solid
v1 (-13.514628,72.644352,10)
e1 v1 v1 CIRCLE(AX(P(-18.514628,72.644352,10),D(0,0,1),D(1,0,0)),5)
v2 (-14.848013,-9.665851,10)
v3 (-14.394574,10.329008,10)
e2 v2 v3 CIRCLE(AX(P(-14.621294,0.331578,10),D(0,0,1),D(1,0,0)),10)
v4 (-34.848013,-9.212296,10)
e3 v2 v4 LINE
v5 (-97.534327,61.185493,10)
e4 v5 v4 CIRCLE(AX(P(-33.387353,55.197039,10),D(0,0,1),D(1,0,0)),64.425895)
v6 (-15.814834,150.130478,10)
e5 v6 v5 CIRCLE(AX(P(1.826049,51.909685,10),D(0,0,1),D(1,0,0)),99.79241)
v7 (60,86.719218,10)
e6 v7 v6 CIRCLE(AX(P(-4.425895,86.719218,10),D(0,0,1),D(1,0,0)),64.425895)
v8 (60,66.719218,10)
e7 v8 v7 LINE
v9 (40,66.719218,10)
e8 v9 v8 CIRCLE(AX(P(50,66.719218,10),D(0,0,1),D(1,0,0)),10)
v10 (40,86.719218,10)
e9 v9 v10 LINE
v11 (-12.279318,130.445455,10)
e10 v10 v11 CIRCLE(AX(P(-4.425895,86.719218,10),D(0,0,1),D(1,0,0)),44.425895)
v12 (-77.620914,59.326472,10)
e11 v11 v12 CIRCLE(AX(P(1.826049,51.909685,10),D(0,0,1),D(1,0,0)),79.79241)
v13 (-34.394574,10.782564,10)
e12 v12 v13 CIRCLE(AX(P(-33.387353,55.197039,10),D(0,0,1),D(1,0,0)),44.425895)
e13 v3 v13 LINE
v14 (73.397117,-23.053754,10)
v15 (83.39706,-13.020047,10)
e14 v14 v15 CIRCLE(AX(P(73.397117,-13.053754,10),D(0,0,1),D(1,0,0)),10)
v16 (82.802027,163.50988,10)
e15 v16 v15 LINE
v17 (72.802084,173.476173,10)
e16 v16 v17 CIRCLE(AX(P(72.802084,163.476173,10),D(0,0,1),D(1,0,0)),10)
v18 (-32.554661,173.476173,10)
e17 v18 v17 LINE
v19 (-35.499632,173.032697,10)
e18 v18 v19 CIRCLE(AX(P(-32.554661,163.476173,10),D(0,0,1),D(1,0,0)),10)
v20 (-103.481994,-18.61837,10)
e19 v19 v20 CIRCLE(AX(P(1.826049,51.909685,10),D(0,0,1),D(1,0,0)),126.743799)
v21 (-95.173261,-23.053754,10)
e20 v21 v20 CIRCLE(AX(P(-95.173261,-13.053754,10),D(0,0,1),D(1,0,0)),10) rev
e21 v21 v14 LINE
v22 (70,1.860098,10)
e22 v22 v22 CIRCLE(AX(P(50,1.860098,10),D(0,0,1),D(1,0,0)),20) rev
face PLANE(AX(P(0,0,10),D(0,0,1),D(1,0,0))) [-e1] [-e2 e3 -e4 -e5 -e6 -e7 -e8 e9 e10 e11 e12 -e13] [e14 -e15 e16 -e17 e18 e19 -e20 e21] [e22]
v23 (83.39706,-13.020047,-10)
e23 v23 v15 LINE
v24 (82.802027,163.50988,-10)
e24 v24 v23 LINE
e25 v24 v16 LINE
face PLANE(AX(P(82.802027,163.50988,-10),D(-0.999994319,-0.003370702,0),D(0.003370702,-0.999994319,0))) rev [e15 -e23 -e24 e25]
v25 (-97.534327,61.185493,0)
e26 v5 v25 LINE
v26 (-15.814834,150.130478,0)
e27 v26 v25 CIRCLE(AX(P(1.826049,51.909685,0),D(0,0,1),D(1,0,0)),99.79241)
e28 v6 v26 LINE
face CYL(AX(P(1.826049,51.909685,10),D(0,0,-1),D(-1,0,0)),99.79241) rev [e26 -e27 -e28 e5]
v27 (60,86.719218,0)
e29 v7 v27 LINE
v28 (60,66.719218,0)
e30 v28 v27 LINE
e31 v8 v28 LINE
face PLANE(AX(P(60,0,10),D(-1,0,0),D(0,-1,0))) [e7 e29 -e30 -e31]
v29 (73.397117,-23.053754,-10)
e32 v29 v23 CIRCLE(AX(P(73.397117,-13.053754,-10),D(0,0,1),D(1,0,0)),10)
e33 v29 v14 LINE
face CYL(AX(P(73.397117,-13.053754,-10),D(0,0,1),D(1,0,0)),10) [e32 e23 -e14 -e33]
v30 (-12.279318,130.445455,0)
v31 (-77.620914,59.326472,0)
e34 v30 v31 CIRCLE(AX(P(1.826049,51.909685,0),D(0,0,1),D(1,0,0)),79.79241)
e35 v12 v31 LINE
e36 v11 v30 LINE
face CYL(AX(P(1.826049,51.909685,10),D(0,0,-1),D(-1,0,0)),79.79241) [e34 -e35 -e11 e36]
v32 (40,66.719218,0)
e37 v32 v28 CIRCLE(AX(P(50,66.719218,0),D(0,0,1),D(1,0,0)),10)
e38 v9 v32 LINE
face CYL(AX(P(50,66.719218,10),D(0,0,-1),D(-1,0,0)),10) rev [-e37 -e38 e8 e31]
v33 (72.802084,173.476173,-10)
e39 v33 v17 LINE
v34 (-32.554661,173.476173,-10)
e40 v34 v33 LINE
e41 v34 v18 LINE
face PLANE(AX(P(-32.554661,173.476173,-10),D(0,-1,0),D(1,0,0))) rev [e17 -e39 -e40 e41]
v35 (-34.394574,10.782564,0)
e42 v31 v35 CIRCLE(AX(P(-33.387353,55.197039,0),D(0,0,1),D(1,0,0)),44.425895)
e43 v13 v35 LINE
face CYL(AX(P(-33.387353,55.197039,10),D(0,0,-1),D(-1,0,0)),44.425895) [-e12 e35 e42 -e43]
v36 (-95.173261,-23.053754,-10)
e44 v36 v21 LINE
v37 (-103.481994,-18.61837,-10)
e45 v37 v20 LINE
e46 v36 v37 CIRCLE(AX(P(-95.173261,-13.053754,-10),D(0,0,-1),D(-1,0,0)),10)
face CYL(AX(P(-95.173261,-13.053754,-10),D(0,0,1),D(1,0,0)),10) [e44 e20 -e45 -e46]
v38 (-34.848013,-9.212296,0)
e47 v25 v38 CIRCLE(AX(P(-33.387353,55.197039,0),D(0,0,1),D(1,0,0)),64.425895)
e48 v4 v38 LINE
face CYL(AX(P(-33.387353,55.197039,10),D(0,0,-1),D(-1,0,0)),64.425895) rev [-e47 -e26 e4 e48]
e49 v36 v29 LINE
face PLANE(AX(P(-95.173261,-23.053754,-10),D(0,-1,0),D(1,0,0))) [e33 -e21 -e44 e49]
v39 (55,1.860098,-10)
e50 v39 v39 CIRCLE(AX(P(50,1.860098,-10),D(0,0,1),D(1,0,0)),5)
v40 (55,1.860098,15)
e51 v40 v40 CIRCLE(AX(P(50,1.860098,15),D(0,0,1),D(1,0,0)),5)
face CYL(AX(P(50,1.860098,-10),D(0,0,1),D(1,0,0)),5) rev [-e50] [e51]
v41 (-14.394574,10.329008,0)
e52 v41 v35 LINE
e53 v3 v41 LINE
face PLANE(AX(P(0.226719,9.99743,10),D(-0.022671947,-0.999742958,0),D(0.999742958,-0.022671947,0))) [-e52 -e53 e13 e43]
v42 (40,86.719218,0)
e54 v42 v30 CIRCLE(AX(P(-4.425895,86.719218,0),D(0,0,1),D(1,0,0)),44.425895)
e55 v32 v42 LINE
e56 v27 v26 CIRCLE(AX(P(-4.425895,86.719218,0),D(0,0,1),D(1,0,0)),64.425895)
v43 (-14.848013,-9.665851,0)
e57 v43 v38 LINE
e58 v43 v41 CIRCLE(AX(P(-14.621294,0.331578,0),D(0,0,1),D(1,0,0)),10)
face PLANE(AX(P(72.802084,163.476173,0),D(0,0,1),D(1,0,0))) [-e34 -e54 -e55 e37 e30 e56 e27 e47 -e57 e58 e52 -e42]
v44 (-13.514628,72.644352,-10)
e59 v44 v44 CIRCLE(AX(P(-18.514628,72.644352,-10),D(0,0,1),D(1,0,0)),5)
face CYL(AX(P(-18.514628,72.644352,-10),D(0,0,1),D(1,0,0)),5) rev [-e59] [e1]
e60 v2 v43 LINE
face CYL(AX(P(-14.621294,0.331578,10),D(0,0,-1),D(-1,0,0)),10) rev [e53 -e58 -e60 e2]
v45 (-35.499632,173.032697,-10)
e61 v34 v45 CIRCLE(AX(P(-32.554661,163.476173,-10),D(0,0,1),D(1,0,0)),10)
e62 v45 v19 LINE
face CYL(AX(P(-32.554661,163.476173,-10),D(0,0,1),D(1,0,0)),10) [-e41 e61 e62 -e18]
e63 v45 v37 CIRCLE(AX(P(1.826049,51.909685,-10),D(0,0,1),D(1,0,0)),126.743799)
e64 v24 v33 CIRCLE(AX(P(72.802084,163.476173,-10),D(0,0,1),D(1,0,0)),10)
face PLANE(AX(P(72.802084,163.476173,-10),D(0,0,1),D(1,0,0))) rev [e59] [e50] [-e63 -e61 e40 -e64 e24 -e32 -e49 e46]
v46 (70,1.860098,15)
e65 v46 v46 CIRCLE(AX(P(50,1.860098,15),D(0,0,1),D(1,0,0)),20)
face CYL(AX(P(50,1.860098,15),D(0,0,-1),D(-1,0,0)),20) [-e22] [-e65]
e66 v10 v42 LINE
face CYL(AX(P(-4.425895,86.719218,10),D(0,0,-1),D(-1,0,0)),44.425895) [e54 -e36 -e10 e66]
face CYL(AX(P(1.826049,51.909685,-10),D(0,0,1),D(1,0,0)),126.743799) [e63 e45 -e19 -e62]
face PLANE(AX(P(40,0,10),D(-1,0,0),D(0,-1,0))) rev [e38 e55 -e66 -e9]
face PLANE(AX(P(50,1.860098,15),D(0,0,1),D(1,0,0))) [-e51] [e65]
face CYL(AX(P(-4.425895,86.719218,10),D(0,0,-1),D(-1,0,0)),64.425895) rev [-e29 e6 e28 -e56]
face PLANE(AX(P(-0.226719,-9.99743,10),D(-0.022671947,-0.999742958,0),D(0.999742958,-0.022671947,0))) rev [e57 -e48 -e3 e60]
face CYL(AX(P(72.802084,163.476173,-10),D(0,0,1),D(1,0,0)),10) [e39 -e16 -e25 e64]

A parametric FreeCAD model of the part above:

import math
import FreeCAD as App
import Part
import Sketcher

V = App.Vector

doc = App.newDocument("Part")
body = doc.addObject("PartDesign::Body", "Body")

# Sketch on XY plane
sketch1 = body.newObject("Sketcher::SketchObject", "Sketch")
sketch1.AttachmentSupport = (doc.getObject("XY_Plane"), [""])
sketch1.MapMode = "FlatFace"
sketch1.addGeometry(Part.LineSegment(V(72.8, 173.5, 0), V(-32.6, 173.5, 0)), False)
sketch1.addGeometry(Part.ArcOfCircle(Part.Circle(V(-32.6, 163.5, 0), V(0, 0, 1), 10), math.radians(90), math.radians(107.13)), False)
sketch1.addGeometry(Part.ArcOfCircle(Part.Circle(V(1.8, 51.9, 0), V(0, 0, 1), 126.7), math.radians(107), math.radians(214)), False)
sketch1.addGeometry(Part.ArcOfCircle(Part.Circle(V(-95.2, -13.1, 0), V(0, 0, 1), 10), math.radians(-146), math.radians(-90)), False)
sketch1.addGeometry(Part.LineSegment(V(-95.2, -23.1, 0), V(73.4, -23.1, 0)), False)
sketch1.addGeometry(Part.ArcOfCircle(Part.Circle(V(73.4, -13.1, 0), V(0, 0, 1), 10), math.radians(-90), math.radians(0)), False)
sketch1.addGeometry(Part.LineSegment(V(83.4, -13, 0), V(82.8, 163.5, 0)), False)
sketch1.addGeometry(Part.ArcOfCircle(Part.Circle(V(72.8, 163.5, 0), V(0, 0, 1), 10), math.radians(0), math.radians(90)), False)
sketch1.addConstraint(Sketcher.Constraint("Tangent", 0, 2, 1, 1))
sketch1.addConstraint(Sketcher.Constraint("Tangent", 1, 2, 2, 1))
sketch1.addConstraint(Sketcher.Constraint("Tangent", 2, 2, 3, 1))
sketch1.addConstraint(Sketcher.Constraint("Tangent", 3, 2, 4, 1))
sketch1.addConstraint(Sketcher.Constraint("Tangent", 4, 2, 5, 1))
sketch1.addConstraint(Sketcher.Constraint("Tangent", 5, 2, 6, 1))
sketch1.addConstraint(Sketcher.Constraint("Tangent", 6, 2, 7, 1))
sketch1.addConstraint(Sketcher.Constraint("Tangent", 7, 2, 0, 1))
sketch1.addConstraint(Sketcher.Constraint("Horizontal", 0))
sketch1.addConstraint(Sketcher.Constraint("Horizontal", 4))
sketch1.addConstraint(Sketcher.Constraint("Equal", 1, 3))
sketch1.addConstraint(Sketcher.Constraint("Equal", 3, 5))
sketch1.addConstraint(Sketcher.Constraint("Equal", 5, 7))
sketch1.addConstraint(Sketcher.Constraint("Radius", 1, 10.0))
sketch1.addConstraint(Sketcher.Constraint("Radius", 2, 126.743799))
sketch1.addConstraint(Sketcher.Constraint("DistanceX", 3, 3, 1, 3, 62.6186))
sketch1.addConstraint(Sketcher.Constraint("Distance", 6, 176.53093))
sketch1.addConstraint(Sketcher.Constraint("DistanceX", 0, 2, 0, 1, 105.356744))
sketch1.addConstraint(Sketcher.Constraint("DistanceX", 4, 1, 4, 2, 168.570378))
sketch1.addConstraint(Sketcher.Constraint("DistanceX", 1, 3, -1, 1, 32.554661))
sketch1.addConstraint(Sketcher.Constraint("DistanceY", 2, 2, -1, 1, 18.61837))
pad1 = body.newObject("PartDesign::Pad", "Pad")
pad1.Profile = sketch1
pad1.Length = 10
pad1.Reversed = True

# Sketch on XY plane
sketch2 = body.newObject("Sketcher::SketchObject", "Sketch001")
sketch2.AttachmentSupport = (doc.getObject("XY_Plane"), [""])
sketch2.MapMode = "FlatFace"
sketch2.AttachmentOffset = App.Placement(V(0, 0, 10), App.Rotation())
sketch2.addGeometry(Part.LineSegment(V(72.8, 173.5, 0), V(-32.6, 173.5, 0)), False)
sketch2.addGeometry(Part.ArcOfCircle(Part.Circle(V(-32.6, 163.5, 0), V(0, 0, 1), 10), math.radians(90), math.radians(107.13)), False)
sketch2.addGeometry(Part.ArcOfCircle(Part.Circle(V(1.8, 51.9, 0), V(0, 0, 1), 126.7), math.radians(107), math.radians(214)), False)
sketch2.addGeometry(Part.ArcOfCircle(Part.Circle(V(-95.2, -13.1, 0), V(0, 0, 1), 10), math.radians(-146), math.radians(-90)), False)
sketch2.addGeometry(Part.LineSegment(V(-95.2, -23.1, 0), V(73.4, -23.1, 0)), False)
sketch2.addGeometry(Part.ArcOfCircle(Part.Circle(V(73.4, -13.1, 0), V(0, 0, 1), 10), math.radians(-90), math.radians(0)), False)
sketch2.addGeometry(Part.LineSegment(V(83.4, -13, 0), V(82.8, 163.5, 0)), False)
sketch2.addGeometry(Part.ArcOfCircle(Part.Circle(V(72.8, 163.5, 0), V(0, 0, 1), 10), math.radians(0), math.radians(90)), False)
sketch2.addGeometry(Part.LineSegment(V(40, 66.7, 0), V(40, 86.7, 0)), False)
sketch2.addGeometry(Part.ArcOfCircle(Part.Circle(V(-4.4, 86.7, 0), V(0, 0, 1), 44.4), math.radians(0), math.radians(100)), False)
sketch2.addGeometry(Part.ArcOfCircle(Part.Circle(V(1.8, 51.9, 0), V(0, 0, 1), 79.8), math.radians(100), math.radians(175)), False)
sketch2.addGeometry(Part.ArcOfCircle(Part.Circle(V(-33.4, 55.2, 0), V(0, 0, 1), 44.4), math.radians(175), math.radians(269)), False)
sketch2.addGeometry(Part.LineSegment(V(-34.4, 10.8, 0), V(-14.4, 10.3, 0)), False)
sketch2.addGeometry(Part.ArcOfCircle(Part.Circle(V(-14.6, 0.3, 0), V(0, 0, 1), 10), math.radians(-91), math.radians(89)), False)
sketch2.addGeometry(Part.LineSegment(V(-14.8, -9.7, 0), V(-34.8, -9.2, 0)), False)
sketch2.addGeometry(Part.ArcOfCircle(Part.Circle(V(-33.4, 55.2, 0), V(0, 0, 1), 64.4), math.radians(175), math.radians(269)), False)
sketch2.addGeometry(Part.ArcOfCircle(Part.Circle(V(1.8, 51.9, 0), V(0, 0, 1), 99.8), math.radians(100), math.radians(175)), False)
sketch2.addGeometry(Part.ArcOfCircle(Part.Circle(V(-4.4, 86.7, 0), V(0, 0, 1), 64.4), math.radians(0), math.radians(100)), False)
sketch2.addGeometry(Part.LineSegment(V(60, 86.7, 0), V(60, 66.7, 0)), False)
sketch2.addGeometry(Part.ArcOfCircle(Part.Circle(V(50, 66.7, 0), V(0, 0, 1), 10), math.radians(180), math.radians(360)), False)
sketch2.addConstraint(Sketcher.Constraint("Tangent", 0, 2, 1, 1))
sketch2.addConstraint(Sketcher.Constraint("Tangent", 1, 2, 2, 1))
sketch2.addConstraint(Sketcher.Constraint("Tangent", 2, 2, 3, 1))
sketch2.addConstraint(Sketcher.Constraint("Tangent", 3, 2, 4, 1))
sketch2.addConstraint(Sketcher.Constraint("Tangent", 4, 2, 5, 1))
sketch2.addConstraint(Sketcher.Constraint("Tangent", 5, 2, 6, 1))
sketch2.addConstraint(Sketcher.Constraint("Tangent", 6, 2, 7, 1))
sketch2.addConstraint(Sketcher.Constraint("Tangent", 7, 2, 0, 1))
sketch2.addConstraint(Sketcher.Constraint("Tangent", 8, 2, 9, 1))
sketch2.addConstraint(Sketcher.Constraint("Tangent", 9, 2, 10, 1))
sketch2.addConstraint(Sketcher.Constraint("Tangent", 10, 2, 11, 1))
sketch2.addConstraint(Sketcher.Constraint("Tangent", 11, 2, 12, 1))
sketch2.addConstraint(Sketcher.Constraint("Tangent", 12, 2, 13, 2))
sketch2.addConstraint(Sketcher.Constraint("Tangent", 13, 1, 14, 1))
sketch2.addConstraint(Sketcher.Constraint("Tangent", 14, 2, 15, 2))
sketch2.addConstraint(Sketcher.Constraint("Tangent", 15, 1, 16, 2))
sketch2.addConstraint(Sketcher.Constraint("Tangent", 16, 1, 17, 2))
sketch2.addConstraint(Sketcher.Constraint("Tangent", 17, 1, 18, 1))
sketch2.addConstraint(Sketcher.Constraint("Tangent", 18, 2, 19, 2))
sketch2.addConstraint(Sketcher.Constraint("Tangent", 19, 1, 8, 1))
sketch2.addConstraint(Sketcher.Constraint("Horizontal", 0))
sketch2.addConstraint(Sketcher.Constraint("Horizontal", 4))
sketch2.addConstraint(Sketcher.Constraint("Vertical", 8))
sketch2.addConstraint(Sketcher.Constraint("Vertical", 18))
sketch2.addConstraint(Sketcher.Constraint("Coincident", 10, 3, 2, 3))
sketch2.addConstraint(Sketcher.Constraint("Coincident", 15, 3, 11, 3))
sketch2.addConstraint(Sketcher.Constraint("Coincident", 16, 3, 2, 3))
sketch2.addConstraint(Sketcher.Constraint("Coincident", 17, 3, 9, 3))
sketch2.addConstraint(Sketcher.Constraint("Equal", 1, 3))
sketch2.addConstraint(Sketcher.Constraint("Equal", 3, 5))
sketch2.addConstraint(Sketcher.Constraint("Equal", 5, 7))
sketch2.addConstraint(Sketcher.Constraint("Equal", 9, 11))
sketch2.addConstraint(Sketcher.Constraint("Equal", 7, 13))
sketch2.addConstraint(Sketcher.Constraint("Equal", 13, 19))
sketch2.addConstraint(Sketcher.Constraint("Radius", 1, 10.0))
sketch2.addConstraint(Sketcher.Constraint("DistanceY", 8, 1, 8, 2, 20.0))
sketch2.addConstraint(Sketcher.Constraint("DistanceX", -1, 1, 19, 3, 50.0))
sketch2.addConstraint(Sketcher.Constraint("DistanceX", 11, 2, 12, 2, 20.0))
sketch2.addConstraint(Sketcher.Constraint("Radius", 2, 126.743799))
sketch2.addConstraint(Sketcher.Constraint("Radius", 10, 79.79241))
sketch2.addConstraint(Sketcher.Constraint("Radius", 9, 44.425895))
sketch2.addConstraint(Sketcher.Constraint("DistanceX", 3, 3, 1, 3, 62.6186))
sketch2.addConstraint(Sketcher.Constraint("DistanceX", 13, 3, 9, 3, 10.195399))
sketch2.addConstraint(Sketcher.Constraint("DistanceX", 2, 2, 13, 3, 88.8607))
sketch2.addConstraint(Sketcher.Constraint("Distance", 6, 176.53093))
sketch2.addConstraint(Sketcher.Constraint("DistanceX", 0, 2, 0, 1, 105.356744))
sketch2.addConstraint(Sketcher.Constraint("DistanceX", 4, 1, 4, 2, 168.570378))
sketch2.addConstraint(Sketcher.Constraint("DistanceY", -1, 1, 11, 3, 55.197039))
sketch2.addConstraint(Sketcher.Constraint("DistanceY", -1, 1, 13, 3, 0.331578))
pad2 = body.newObject("PartDesign::Pad", "Pad001")
pad2.Profile = sketch2
pad2.Length = 10
pad2.Reversed = True

# Sketch on XY plane
sketch3 = body.newObject("Sketcher::SketchObject", "Sketch002")
sketch3.AttachmentSupport = (doc.getObject("XY_Plane"), [""])
sketch3.MapMode = "FlatFace"
sketch3.addGeometry(Part.Circle(V(50, 2, 0), V(0, 0, 1), 20), False)
sketch3.addConstraint(Sketcher.Constraint("Diameter", 0, 40.0))
sketch3.addConstraint(Sketcher.Constraint("DistanceX", -1, 1, 0, 3, 50.0))
sketch3.addConstraint(Sketcher.Constraint("DistanceY", -1, 1, 0, 3, 1.860098))
pad3 = body.newObject("PartDesign::Pad", "Pad002")
pad3.Profile = sketch3
pad3.Length = 15

# Sketch on XY plane
sketch4 = body.newObject("Sketcher::SketchObject", "Sketch003")
sketch4.AttachmentSupport = (doc.getObject("XY_Plane"), [""])
sketch4.MapMode = "FlatFace"
sketch4.addGeometry(Part.Circle(V(-19, 73, 0), V(0, 0, 1), 5), False)
sketch4.addGeometry(Part.Circle(V(50, 2, 0), V(0, 0, 1), 5), False)
sketch4.addConstraint(Sketcher.Constraint("Equal", 0, 1))
sketch4.addConstraint(Sketcher.Constraint("Diameter", 0, 10.0))
sketch4.addConstraint(Sketcher.Constraint("DistanceX", -1, 1, 1, 3, 50.0))
sketch4.addConstraint(Sketcher.Constraint("DistanceY", -1, 1, 1, 3, 1.860098))
sketch4.addConstraint(Sketcher.Constraint("DistanceX", 0, 3, -1, 1, 18.514628))
sketch4.addConstraint(Sketcher.Constraint("DistanceY", -1, 1, 0, 3, 72.644352))
pocket1 = body.newObject("PartDesign::Pocket", "Pocket")
pocket1.Profile = sketch4
pocket1.Type = "ThroughAll"
pocket1.Midplane = True

doc.recompute()
